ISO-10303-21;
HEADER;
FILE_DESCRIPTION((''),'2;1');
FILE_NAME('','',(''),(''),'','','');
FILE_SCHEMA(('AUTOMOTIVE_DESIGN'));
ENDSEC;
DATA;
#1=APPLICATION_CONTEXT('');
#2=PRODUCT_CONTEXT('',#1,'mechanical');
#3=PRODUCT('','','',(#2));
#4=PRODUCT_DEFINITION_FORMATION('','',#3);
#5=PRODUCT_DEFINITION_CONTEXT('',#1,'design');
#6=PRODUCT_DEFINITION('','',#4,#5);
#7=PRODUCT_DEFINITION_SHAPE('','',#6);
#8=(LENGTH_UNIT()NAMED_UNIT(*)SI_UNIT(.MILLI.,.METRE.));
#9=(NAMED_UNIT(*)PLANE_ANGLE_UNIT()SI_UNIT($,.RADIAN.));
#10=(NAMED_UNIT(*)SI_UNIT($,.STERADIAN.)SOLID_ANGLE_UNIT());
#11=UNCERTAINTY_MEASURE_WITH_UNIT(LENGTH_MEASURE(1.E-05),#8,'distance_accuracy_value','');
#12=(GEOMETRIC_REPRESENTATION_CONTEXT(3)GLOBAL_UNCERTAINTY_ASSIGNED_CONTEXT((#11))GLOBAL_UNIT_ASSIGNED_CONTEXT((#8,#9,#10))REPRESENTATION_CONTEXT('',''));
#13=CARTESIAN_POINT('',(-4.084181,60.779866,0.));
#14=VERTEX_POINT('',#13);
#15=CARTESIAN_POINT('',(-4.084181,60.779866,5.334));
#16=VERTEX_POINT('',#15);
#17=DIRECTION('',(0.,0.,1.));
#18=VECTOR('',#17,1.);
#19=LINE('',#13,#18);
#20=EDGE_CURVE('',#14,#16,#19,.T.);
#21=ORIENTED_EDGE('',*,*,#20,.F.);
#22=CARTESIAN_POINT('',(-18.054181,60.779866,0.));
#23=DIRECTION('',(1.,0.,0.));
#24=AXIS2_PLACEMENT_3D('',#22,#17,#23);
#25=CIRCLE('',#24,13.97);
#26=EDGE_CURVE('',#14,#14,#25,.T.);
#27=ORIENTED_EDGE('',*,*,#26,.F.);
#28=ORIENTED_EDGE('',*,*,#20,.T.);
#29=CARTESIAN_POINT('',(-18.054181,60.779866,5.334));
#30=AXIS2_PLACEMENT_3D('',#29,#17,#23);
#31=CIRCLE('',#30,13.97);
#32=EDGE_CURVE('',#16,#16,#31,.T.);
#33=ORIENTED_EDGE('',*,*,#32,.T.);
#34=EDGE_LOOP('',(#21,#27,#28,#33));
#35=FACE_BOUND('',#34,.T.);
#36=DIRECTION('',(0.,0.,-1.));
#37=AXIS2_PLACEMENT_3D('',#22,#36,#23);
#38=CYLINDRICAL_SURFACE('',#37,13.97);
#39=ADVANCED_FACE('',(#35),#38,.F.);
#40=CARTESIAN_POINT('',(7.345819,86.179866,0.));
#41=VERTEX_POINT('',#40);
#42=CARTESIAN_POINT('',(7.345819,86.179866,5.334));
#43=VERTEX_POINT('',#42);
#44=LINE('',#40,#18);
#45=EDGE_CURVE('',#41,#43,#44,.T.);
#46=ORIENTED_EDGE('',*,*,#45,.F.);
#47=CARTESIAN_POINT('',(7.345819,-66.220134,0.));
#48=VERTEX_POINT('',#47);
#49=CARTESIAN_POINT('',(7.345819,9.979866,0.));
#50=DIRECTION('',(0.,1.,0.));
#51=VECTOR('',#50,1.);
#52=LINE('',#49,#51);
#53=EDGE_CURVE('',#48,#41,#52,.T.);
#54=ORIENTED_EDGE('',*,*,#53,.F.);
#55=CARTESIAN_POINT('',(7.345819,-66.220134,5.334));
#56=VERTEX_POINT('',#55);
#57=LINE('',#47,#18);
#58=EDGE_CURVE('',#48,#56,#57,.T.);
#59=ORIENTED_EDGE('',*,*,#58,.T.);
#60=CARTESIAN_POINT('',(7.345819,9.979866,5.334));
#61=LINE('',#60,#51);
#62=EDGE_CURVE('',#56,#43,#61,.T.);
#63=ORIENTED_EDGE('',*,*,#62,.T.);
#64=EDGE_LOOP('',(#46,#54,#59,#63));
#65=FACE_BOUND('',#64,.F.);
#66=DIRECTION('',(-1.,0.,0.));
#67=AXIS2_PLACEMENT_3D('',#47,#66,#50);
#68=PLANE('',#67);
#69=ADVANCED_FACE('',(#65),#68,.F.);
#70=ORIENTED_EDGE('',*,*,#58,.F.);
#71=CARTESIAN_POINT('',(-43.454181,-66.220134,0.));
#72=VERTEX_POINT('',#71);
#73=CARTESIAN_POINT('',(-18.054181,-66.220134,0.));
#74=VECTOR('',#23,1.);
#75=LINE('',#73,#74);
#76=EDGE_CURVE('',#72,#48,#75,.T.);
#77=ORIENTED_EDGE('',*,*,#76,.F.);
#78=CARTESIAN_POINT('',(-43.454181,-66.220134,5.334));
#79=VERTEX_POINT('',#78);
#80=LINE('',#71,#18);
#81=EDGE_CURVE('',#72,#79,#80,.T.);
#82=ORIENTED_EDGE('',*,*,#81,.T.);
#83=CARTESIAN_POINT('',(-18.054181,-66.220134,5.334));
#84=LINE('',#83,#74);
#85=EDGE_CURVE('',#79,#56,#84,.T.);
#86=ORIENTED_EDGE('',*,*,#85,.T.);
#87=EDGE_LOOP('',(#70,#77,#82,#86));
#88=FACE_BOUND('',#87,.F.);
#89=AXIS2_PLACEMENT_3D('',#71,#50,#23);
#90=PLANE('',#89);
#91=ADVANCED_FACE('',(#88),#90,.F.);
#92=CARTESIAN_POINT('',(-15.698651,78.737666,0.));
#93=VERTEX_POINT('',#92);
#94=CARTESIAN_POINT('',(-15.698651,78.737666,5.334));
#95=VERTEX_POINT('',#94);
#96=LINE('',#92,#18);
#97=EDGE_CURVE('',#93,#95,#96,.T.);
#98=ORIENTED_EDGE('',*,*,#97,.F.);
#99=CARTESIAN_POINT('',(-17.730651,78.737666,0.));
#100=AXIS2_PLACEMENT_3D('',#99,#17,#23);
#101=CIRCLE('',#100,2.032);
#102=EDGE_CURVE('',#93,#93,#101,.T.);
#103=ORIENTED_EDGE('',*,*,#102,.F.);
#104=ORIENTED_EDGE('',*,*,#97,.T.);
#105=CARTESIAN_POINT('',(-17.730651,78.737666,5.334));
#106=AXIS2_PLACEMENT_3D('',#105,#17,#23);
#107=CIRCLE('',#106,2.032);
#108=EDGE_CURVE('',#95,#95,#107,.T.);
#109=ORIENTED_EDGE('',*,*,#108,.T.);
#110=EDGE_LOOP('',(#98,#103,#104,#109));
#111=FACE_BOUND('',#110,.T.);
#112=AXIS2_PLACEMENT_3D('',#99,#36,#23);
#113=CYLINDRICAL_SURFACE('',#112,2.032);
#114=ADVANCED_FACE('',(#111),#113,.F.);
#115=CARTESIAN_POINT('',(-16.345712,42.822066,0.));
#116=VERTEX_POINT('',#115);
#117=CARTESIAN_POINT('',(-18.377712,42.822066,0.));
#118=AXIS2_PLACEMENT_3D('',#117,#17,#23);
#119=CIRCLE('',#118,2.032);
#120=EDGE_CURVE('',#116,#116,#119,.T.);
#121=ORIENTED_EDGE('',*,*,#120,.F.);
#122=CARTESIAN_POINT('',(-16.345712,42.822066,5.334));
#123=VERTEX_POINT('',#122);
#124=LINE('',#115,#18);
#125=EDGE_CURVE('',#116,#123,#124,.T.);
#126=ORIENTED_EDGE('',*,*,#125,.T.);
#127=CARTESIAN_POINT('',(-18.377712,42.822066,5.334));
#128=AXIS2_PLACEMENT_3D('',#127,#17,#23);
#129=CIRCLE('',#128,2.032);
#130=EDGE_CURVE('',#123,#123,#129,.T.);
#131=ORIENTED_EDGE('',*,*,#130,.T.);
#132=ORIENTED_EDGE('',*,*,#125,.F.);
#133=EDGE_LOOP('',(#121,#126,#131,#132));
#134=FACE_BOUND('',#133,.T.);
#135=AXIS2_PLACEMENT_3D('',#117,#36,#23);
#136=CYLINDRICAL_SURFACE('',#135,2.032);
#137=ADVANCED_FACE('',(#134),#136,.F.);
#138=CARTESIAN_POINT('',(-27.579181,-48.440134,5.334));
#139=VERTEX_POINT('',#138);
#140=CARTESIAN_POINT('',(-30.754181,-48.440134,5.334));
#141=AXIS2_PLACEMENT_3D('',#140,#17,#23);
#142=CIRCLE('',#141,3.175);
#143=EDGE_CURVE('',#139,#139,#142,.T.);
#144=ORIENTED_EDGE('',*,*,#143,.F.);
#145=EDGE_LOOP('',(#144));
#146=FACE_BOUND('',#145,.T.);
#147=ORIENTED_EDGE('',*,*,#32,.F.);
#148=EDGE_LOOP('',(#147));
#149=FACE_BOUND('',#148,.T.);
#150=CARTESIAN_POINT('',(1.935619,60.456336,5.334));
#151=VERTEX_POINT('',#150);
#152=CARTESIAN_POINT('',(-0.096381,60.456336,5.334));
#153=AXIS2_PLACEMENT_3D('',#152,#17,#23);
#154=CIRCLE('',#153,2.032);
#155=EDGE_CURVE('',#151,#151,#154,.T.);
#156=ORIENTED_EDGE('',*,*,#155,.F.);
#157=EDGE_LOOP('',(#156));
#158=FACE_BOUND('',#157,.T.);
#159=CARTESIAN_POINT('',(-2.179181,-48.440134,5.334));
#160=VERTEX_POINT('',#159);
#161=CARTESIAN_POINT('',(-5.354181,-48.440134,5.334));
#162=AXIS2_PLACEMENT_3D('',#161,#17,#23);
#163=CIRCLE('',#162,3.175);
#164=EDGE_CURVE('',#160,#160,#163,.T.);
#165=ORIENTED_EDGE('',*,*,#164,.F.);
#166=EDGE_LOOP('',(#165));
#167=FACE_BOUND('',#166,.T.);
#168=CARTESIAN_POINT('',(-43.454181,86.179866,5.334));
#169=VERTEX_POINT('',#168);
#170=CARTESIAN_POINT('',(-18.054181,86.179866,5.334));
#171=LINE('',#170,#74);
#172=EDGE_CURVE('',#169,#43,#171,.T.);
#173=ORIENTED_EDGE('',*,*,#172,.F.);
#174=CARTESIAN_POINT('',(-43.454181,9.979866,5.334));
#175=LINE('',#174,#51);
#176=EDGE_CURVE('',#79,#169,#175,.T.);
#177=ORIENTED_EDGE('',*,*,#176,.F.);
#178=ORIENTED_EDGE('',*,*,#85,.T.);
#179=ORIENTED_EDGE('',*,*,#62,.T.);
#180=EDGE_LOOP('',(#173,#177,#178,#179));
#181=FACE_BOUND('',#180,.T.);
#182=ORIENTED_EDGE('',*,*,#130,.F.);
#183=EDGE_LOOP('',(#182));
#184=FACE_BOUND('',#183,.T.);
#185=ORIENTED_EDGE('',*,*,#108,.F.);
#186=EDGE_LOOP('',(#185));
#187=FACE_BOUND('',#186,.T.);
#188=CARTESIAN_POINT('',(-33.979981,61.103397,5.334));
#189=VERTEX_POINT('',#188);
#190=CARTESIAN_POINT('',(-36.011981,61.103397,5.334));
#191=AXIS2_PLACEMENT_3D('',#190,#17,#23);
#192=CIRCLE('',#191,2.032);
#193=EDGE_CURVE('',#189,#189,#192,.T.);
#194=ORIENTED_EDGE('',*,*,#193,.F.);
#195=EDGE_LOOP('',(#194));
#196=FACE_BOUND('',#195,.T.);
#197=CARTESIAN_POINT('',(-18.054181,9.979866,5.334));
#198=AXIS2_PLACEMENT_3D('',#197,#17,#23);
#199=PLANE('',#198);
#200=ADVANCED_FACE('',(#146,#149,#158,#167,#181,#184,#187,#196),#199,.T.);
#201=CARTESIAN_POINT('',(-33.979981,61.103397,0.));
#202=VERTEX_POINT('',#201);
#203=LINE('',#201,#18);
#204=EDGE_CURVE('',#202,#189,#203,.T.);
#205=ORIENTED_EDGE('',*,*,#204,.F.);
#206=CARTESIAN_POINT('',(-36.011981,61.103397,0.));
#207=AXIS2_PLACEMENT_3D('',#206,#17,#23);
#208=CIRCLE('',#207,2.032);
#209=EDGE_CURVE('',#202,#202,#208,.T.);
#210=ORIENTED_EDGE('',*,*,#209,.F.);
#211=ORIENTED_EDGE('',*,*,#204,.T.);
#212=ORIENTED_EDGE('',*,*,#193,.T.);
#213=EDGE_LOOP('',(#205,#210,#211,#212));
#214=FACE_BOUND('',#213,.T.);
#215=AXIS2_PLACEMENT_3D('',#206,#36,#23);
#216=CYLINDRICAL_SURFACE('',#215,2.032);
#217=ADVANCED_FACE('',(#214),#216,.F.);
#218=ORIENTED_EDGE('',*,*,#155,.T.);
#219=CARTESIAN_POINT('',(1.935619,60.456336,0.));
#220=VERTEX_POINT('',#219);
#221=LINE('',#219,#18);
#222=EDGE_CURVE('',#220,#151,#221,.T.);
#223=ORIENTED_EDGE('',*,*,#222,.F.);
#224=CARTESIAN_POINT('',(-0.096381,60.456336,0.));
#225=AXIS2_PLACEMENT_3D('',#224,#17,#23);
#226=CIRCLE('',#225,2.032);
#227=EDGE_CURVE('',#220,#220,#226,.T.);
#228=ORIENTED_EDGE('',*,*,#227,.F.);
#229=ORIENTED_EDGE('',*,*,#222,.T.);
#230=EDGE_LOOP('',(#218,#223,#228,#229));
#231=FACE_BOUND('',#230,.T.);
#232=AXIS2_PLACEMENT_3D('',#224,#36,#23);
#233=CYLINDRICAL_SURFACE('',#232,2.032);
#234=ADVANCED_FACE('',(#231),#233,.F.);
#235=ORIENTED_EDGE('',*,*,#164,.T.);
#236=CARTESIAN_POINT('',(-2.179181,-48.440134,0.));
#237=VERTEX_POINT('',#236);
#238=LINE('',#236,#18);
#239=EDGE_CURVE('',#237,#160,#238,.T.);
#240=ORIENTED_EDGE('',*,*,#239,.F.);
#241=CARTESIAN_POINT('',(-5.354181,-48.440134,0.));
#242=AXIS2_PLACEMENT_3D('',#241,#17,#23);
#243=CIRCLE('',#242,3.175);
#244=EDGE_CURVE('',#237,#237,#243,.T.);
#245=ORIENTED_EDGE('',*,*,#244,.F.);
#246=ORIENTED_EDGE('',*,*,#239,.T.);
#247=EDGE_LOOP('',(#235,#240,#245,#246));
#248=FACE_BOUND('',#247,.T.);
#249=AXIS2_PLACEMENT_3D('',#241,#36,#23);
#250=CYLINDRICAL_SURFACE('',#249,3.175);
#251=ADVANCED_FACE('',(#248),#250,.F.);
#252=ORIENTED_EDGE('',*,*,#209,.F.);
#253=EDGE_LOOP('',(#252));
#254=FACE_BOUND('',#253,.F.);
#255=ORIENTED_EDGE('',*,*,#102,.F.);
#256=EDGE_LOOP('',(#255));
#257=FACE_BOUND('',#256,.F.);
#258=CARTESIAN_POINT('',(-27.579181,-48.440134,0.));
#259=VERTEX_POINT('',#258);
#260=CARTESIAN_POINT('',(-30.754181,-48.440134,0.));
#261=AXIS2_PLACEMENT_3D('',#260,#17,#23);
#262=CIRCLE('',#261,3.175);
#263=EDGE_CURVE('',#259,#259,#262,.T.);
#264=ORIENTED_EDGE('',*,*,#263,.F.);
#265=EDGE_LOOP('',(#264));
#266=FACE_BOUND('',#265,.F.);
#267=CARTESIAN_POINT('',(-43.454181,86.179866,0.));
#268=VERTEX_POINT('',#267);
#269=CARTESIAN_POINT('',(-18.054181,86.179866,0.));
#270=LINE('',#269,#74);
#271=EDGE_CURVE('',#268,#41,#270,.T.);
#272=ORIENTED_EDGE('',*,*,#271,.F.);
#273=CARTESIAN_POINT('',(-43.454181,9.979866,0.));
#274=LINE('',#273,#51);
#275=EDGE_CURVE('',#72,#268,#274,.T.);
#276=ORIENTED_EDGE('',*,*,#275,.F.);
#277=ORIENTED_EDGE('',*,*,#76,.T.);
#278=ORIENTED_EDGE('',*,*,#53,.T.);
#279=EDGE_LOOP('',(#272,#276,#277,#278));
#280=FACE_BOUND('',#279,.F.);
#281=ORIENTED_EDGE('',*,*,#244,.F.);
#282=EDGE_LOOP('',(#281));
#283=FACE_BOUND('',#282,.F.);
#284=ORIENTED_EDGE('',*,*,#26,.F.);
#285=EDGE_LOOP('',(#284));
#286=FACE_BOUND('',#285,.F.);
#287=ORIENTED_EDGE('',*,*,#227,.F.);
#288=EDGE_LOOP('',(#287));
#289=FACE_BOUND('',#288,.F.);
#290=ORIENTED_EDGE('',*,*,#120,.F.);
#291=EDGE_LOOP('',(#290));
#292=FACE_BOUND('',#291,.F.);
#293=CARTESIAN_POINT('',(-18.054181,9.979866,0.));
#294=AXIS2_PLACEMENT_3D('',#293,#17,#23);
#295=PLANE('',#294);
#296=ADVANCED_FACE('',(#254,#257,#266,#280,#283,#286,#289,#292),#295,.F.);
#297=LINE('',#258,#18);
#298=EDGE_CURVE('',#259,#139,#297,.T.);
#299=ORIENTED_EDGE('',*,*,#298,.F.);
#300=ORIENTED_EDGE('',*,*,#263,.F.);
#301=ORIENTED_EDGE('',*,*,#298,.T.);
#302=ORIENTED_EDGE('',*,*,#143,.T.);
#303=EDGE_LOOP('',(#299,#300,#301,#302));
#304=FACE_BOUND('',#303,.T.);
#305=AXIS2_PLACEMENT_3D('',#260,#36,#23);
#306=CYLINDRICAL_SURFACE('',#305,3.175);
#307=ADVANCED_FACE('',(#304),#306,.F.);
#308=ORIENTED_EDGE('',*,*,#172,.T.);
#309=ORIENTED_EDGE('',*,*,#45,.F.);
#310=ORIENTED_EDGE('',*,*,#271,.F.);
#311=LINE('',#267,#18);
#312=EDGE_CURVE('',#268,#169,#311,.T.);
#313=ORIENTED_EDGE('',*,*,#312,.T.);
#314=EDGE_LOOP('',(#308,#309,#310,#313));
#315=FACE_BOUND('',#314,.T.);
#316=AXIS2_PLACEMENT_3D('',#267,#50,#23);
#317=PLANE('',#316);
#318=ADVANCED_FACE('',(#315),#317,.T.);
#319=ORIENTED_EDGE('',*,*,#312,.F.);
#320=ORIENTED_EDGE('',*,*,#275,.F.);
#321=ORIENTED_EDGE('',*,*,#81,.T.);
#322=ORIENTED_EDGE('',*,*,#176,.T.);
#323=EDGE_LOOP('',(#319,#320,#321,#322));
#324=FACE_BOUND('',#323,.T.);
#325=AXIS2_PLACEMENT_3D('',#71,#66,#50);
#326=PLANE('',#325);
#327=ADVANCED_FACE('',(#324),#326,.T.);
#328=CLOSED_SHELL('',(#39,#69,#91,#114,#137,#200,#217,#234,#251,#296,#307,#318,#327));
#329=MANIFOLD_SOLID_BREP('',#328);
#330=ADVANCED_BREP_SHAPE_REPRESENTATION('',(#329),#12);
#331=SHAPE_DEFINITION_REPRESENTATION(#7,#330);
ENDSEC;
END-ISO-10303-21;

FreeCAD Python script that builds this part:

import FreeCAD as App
import Part
import Sketcher
from FreeCAD import Vector
Q = App.Units.Quantity

doc = App.newDocument("Part")
body = doc.addObject("PartDesign::Body", "Body")

# Sketch on XY plane
sketch1 = body.newObject("Sketcher::SketchObject", "Sketch")
sketch1.AttachmentSupport = (doc.getObject("XY_Plane"), [""])
sketch1.MapMode = "FlatFace"
sketch1.addGeometry(Part.LineSegment(Vector(-43.5, 86.2, 0), Vector(-43.5, -66.2, 0)), False)
sketch1.addGeometry(Part.LineSegment(Vector(-43.5, -66.2, 0), Vector(7.3, -66.2, 0)), False)
sketch1.addGeometry(Part.LineSegment(Vector(7.3, -66.2, 0), Vector(7.3, 86.2, 0)), False)
sketch1.addGeometry(Part.LineSegment(Vector(7.3, 86.2, 0), Vector(-43.5, 86.2, 0)), False)
sketch1.addGeometry(Part.Circle(Vector(-30.8, -48.4, 0), Vector(0, 0, 1), 3.2), False)
sketch1.addGeometry(Part.Circle(Vector(-5.4, -48.4, 0), Vector(0, 0, 1), 3.2), False)
sketch1.addGeometry(Part.Circle(Vector(-18.4, 42.8, 0), Vector(0, 0, 1), 2), False)
sketch1.addGeometry(Part.Circle(Vector(-36, 61.1, 0), Vector(0, 0, 1), 2), False)
sketch1.addGeometry(Part.Circle(Vector(-18.1, 60.8, 0), Vector(0, 0, 1), 14), False)
sketch1.addGeometry(Part.Circle(Vector(-17.7, 78.7, 0), Vector(0, 0, 1), 2), False)
sketch1.addGeometry(Part.Circle(Vector(-0.1, 60.5, 0), Vector(0, 0, 1), 2), False)
sketch1.addConstraint(Sketcher.Constraint("Coincident", 0, 2, 1, 1))
sketch1.addConstraint(Sketcher.Constraint("Coincident", 1, 2, 2, 1))
sketch1.addConstraint(Sketcher.Constraint("Coincident", 2, 2, 3, 1))
sketch1.addConstraint(Sketcher.Constraint("Coincident", 3, 2, 0, 1))
sketch1.addConstraint(Sketcher.Constraint("Vertical", 0))
sketch1.addConstraint(Sketcher.Constraint("Horizontal", 1))
sketch1.addConstraint(Sketcher.Constraint("Vertical", 2))
sketch1.addConstraint(Sketcher.Constraint("Horizontal", 3))
sketch1.addConstraint(Sketcher.Constraint("Equal", 4, 5))
sketch1.addConstraint(Sketcher.Constraint("Equal", 6, 7))
sketch1.addConstraint(Sketcher.Constraint("Equal", 7, 9))
sketch1.addConstraint(Sketcher.Constraint("Equal", 9, 10))
sketch1.addConstraint(Sketcher.Constraint("Horizontal", 4, 3, 5, 3))
sketch1.addConstraint(Sketcher.Constraint("Diameter", 8, Q("1.1 in")))
sketch1.addConstraint(Sketcher.Constraint("Diameter", 4, Q("0.25 in")))
sketch1.addConstraint(Sketcher.Constraint("Diameter", 6, Q("0.16 in")))
sketch1.addConstraint(Sketcher.Constraint("DistanceX", 1, 1, 1, 2, Q("2 in")))
sketch1.addConstraint(Sketcher.Constraint("DistanceY", 0, 2, 0, 1, Q("6 in")))
sketch1.addConstraint(Sketcher.Constraint("DistanceX", 4, 3, 5, 3, Q("1 in")))
sketch1.addConstraint(Sketcher.Constraint("DistanceX", 0, 2, 8, 3, Q("1 in")))
sketch1.addConstraint(Sketcher.Constraint("DistanceY", 0, 2, 8, 3, Q("5 in")))
sketch1.addConstraint(Sketcher.Constraint("DistanceX", 4, 3, 8, 3, Q("0.5 in")))
sketch1.addConstraint(Sketcher.Constraint("DistanceY", 4, 3, 8, 3, Q("4.3 in")))
sketch1.addConstraint(Sketcher.Constraint("DistanceY", 4, 3, 6, 3, Q("3.593 in")))
sketch1.addConstraint(Sketcher.Constraint("DistanceX", 7, 3, 4, 3, Q("0.207 in")))
sketch1.addConstraint(Sketcher.Constraint("DistanceY", 8, 3, 9, 3, Q("0.707 in")))
sketch1.addConstraint(Sketcher.Constraint("DistanceX", 8, 3, 10, 3, Q("0.707 in")))
sketch1.addConstraint(Sketcher.Constraint("DistanceX", 4, 3, -1, 1, Q("30.754181 mm")))
sketch1.addConstraint(Sketcher.Constraint("DistanceX", 6, 3, -1, 1, Q("18.377712 mm")))
sketch1.addConstraint(Sketcher.Constraint("DistanceX", 9, 3, -1, 1, Q("17.730651 mm")))
sketch1.addConstraint(Sketcher.Constraint("DistanceY", 6, 3, 7, 3, Q("18.281331 mm")))
sketch1.addConstraint(Sketcher.Constraint("DistanceY", 10, 3, 8, 3, Q("0.32353 mm")))
sketch1.addConstraint(Sketcher.Constraint("DistanceY", 4, 3, -1, 1, Q("48.440134 mm")))
pad1 = body.newObject("PartDesign::Pad", "Pad")
pad1.Profile = sketch1
pad1.Length = Q("0.21 in")

# Sketch on XY plane
sketch2 = body.newObject("Sketcher::SketchObject", "Sketch001")
sketch2.AttachmentSupport = (doc.getObject("XY_Plane"), [""])
sketch2.MapMode = "FlatFace"
sketch2.addGeometry(Part.Circle(Vector(-5.4, -48.4, 0), Vector(0, 0, 1), 3.2), False)
sketch2.addGeometry(Part.Circle(Vector(-30.8, -48.4, 0), Vector(0, 0, 1), 3.2), False)
sketch2.addConstraint(Sketcher.Constraint("Equal", 0, 1))
sketch2.addConstraint(Sketcher.Constraint("Horizontal", 0, 3, 1, 3))
sketch2.addConstraint(Sketcher.Constraint("Diameter", 0, Q("0.25 in")))
sketch2.addConstraint(Sketcher.Constraint("DistanceX", 1, 3, 0, 3, Q("1 in")))
sketch2.addConstraint(Sketcher.Constraint("DistanceX", 0, 3, -1, 1, Q("5.354181 mm")))
sketch2.addConstraint(Sketcher.Constraint("DistanceY", 0, 3, -1, 1, Q("48.440134 mm")))
pocket1 = body.newObject("PartDesign::Pocket", "Pocket")
pocket1.Profile = sketch2
pocket1.Length = Q("1 in")
pocket1.Reversed = True

doc.recompute()
